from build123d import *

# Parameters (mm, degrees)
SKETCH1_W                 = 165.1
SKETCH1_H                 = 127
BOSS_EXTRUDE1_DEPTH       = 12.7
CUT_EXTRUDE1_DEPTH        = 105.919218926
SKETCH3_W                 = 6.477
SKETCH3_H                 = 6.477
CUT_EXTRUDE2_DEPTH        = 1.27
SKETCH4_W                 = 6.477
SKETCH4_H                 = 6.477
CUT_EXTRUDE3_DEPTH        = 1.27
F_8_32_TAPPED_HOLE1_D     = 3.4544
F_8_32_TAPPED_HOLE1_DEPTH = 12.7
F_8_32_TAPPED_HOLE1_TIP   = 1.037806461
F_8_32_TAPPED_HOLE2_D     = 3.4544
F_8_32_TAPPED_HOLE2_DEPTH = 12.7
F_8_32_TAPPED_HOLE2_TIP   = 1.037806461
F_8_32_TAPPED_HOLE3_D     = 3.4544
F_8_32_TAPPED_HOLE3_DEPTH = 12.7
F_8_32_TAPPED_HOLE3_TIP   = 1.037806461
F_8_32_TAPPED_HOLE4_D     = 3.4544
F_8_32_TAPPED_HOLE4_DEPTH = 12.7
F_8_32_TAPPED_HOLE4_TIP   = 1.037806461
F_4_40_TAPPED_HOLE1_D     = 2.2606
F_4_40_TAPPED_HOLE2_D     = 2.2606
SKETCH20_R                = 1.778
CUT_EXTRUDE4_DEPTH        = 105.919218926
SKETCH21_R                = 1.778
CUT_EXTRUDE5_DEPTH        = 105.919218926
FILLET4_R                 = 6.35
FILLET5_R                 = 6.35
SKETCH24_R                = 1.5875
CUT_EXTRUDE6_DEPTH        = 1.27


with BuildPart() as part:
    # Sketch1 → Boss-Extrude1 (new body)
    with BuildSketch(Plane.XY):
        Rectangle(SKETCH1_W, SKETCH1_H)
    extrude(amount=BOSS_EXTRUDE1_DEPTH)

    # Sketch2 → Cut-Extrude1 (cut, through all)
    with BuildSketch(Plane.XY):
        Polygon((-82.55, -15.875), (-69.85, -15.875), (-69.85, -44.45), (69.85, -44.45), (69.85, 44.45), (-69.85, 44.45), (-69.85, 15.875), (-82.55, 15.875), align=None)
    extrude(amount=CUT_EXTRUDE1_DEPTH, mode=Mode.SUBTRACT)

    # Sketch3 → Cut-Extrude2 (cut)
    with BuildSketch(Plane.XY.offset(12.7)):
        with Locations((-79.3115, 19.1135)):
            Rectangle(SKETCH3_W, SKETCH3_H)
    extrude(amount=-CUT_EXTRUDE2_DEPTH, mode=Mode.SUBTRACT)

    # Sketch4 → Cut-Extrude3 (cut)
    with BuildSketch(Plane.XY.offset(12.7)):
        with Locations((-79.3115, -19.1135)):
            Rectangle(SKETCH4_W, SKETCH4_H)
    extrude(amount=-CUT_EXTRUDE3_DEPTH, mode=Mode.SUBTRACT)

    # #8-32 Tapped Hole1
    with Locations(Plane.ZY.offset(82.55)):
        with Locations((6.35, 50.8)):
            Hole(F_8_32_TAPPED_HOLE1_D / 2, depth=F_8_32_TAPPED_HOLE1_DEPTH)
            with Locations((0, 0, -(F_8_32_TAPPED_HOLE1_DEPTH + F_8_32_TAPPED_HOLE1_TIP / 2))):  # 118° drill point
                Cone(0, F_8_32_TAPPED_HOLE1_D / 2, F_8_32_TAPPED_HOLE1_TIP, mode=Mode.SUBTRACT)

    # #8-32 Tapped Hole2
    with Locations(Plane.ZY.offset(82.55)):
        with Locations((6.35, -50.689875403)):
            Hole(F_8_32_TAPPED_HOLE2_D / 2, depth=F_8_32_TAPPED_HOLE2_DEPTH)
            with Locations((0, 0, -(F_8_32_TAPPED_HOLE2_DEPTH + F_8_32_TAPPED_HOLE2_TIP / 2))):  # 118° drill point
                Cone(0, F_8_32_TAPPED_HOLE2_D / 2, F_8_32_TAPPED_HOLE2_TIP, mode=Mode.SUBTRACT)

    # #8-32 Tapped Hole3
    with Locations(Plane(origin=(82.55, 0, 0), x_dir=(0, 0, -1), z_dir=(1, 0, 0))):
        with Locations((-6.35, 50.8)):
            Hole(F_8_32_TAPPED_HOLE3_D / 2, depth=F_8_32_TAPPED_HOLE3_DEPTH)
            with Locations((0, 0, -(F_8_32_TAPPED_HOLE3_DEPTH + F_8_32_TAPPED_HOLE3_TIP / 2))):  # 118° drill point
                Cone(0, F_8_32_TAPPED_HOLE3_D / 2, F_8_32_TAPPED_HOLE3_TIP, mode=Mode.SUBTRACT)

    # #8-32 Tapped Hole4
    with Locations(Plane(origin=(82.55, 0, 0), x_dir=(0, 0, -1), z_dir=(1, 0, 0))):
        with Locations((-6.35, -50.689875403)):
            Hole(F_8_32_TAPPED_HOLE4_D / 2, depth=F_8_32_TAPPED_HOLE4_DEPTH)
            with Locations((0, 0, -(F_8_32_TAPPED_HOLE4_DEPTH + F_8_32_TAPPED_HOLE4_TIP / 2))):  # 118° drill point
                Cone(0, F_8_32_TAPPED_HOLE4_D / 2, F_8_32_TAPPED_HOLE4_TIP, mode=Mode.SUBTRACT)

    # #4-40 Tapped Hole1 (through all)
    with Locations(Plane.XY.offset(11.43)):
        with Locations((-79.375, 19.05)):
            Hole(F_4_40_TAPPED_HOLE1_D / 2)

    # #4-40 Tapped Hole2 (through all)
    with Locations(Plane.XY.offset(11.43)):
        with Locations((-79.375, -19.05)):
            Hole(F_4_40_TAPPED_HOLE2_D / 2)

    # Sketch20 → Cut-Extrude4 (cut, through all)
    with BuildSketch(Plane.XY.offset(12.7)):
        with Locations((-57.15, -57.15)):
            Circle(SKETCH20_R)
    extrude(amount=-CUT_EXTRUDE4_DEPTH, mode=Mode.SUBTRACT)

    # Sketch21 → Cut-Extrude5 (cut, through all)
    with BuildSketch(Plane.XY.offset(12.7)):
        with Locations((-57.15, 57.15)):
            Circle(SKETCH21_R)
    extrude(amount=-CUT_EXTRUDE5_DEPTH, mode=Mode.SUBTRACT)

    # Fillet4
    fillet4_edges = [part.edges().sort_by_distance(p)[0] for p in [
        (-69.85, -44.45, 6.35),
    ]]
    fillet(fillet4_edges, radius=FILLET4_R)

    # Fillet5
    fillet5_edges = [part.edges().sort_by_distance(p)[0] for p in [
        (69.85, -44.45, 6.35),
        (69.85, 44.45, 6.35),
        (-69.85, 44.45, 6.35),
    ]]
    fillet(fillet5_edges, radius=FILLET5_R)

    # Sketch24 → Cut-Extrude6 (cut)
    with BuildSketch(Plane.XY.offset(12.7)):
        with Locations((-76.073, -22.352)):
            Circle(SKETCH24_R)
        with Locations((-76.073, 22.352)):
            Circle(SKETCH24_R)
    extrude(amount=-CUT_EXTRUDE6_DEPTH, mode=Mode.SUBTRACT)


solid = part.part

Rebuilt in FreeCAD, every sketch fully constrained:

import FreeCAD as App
import Part
import Sketcher
Q = App.Units.Quantity


def edges_at(feature, points):
    """Names of the edges that pass closest to the given points."""
    edges = feature.Shape.Edges
    near = lambda p: min(range(len(edges)), key=lambda i: edges[i].distToShape(Part.Vertex(*p))[0])
    return sorted({f"Edge{near(p) + 1}" for p in points})


def add_polygon(sketch, points):
    """Adds a closed chain of lines whose ends are joined by coincident constraints."""
    first, n = sketch.GeometryCount, len(points)
    for a, b in zip(points, points[1:] + points[:1]):
        sketch.addGeometry(Part.LineSegment(App.Vector(*a, 0), App.Vector(*b, 0)), False)
    for i in range(n):
        sketch.addConstraint(Sketcher.Constraint("Coincident", first + i, 2, first + (i + 1) % n, 1))

doc = App.newDocument("Part")
body = doc.addObject("PartDesign::Body", "Body")

# Sketch on XY plane
sketch1 = body.newObject("Sketcher::SketchObject", "Sketch")
sketch1.AttachmentSupport = (doc.getObject("XY_Plane"), [""])
sketch1.MapMode = "FlatFace"
add_polygon(sketch1, [(-83, 64), (-83, -64), (83, -64), (83, 64)])  # lines 0-3
sketch1.addConstraint([
    Sketcher.Constraint("Vertical", 0),
    Sketcher.Constraint("Horizontal", 1),
    Sketcher.Constraint("Vertical", 2),
    Sketcher.Constraint("Horizontal", 3),
    Sketcher.Constraint("Symmetric", 0, 2, 2, 2, -1, 1),
    Sketcher.Constraint("DistanceY", 0, 2, 0, 1, Q("5 in")),
    Sketcher.Constraint("DistanceX", 1, 1, 1, 2, Q("6.5 in")),
])
pad1 = body.newObject("PartDesign::Pad", "Pad")
pad1.Profile = sketch1
pad1.Length = Q("0.5 in")

# Sketch on XY plane
sketch2 = body.newObject("Sketcher::SketchObject", "Sketch001")
sketch2.AttachmentSupport = (doc.getObject("XY_Plane"), [""])
sketch2.MapMode = "FlatFace"
add_polygon(sketch2, [(-83, -16), (-70, -16), (-70, -44), (70, -44), (70, 44), (-70, 44), (-70, 16), (-83, 16)])  # lines 0-7
sketch2.addConstraint([
    Sketcher.Constraint("Horizontal", 0),
    Sketcher.Constraint("Vertical", 1),
    Sketcher.Constraint("Horizontal", 2),
    Sketcher.Constraint("Vertical", 3),
    Sketcher.Constraint("Horizontal", 4),
    Sketcher.Constraint("Vertical", 5),
    Sketcher.Constraint("Horizontal", 6),
    Sketcher.Constraint("Vertical", 7),
    Sketcher.Constraint("Symmetric", 1, 2, 3, 2, -1, 1),
    Sketcher.Constraint("Symmetric", 0, 2, 5, 2, -1),
    Sketcher.Constraint("DistanceX", 0, 1, 0, 2, Q("0.5 in")),
    Sketcher.Constraint("DistanceX", 2, 1, 2, 2, Q("5.5 in")),
    Sketcher.Constraint("DistanceY", 3, 1, 3, 2, Q("3.5 in")),
    Sketcher.Constraint("DistanceY", 7, 2, 7, 1, Q("1.25 in")),
])
pocket1 = body.newObject("PartDesign::Pocket", "Pocket")
pocket1.Profile = sketch2
pocket1.Type = "ThroughAll"
pocket1.Reversed = True

# Sketch on XY plane
sketch3 = body.newObject("Sketcher::SketchObject", "Sketch002")
sketch3.AttachmentSupport = (doc.getObject("XY_Plane"), [""])
sketch3.MapMode = "FlatFace"
sketch3.AttachmentOffset = App.Placement(App.Vector(0, 0, 0.5 * 25.4), App.Rotation())
add_polygon(sketch3, [(-83, 22), (-83, 16), (-76, 16), (-76, 22)])  # lines 0-3
sketch3.addConstraint([
    Sketcher.Constraint("Vertical", 0),
    Sketcher.Constraint("Horizontal", 1),
    Sketcher.Constraint("Vertical", 2),
    Sketcher.Constraint("Horizontal", 3),
    Sketcher.Constraint("Equal", 3, 0),
    Sketcher.Constraint("DistanceX", 1, 1, 1, 2, Q("0.255 in")),
    Sketcher.Constraint("DistanceX", 0, 2, -1, 1, Q("3.25 in")),
    Sketcher.Constraint("DistanceY", -1, 1, 2, 2, Q("0.88 in")),
])
pocket2 = body.newObject("PartDesign::Pocket", "Pocket001")
pocket2.Profile = sketch3
pocket2.Length = Q("0.05 in")

# Sketch on XY plane
sketch4 = body.newObject("Sketcher::SketchObject", "Sketch003")
sketch4.AttachmentSupport = (doc.getObject("XY_Plane"), [""])
sketch4.MapMode = "FlatFace"
sketch4.AttachmentOffset = App.Placement(App.Vector(0, 0, 0.5 * 25.4), App.Rotation())
add_polygon(sketch4, [(-83, -16), (-83, -22), (-76, -22), (-76, -16)])  # lines 0-3
sketch4.addConstraint([
    Sketcher.Constraint("Vertical", 0),
    Sketcher.Constraint("Horizontal", 1),
    Sketcher.Constraint("Vertical", 2),
    Sketcher.Constraint("Horizontal", 3),
    Sketcher.Constraint("Equal", 3, 0),
    Sketcher.Constraint("DistanceX", 1, 1, 1, 2, Q("0.255 in")),
    Sketcher.Constraint("DistanceX", 0, 2, -1, 1, Q("3.25 in")),
    Sketcher.Constraint("DistanceY", 0, 2, -1, 1, Q("0.88 in")),
])
pocket3 = body.newObject("PartDesign::Pocket", "Pocket002")
pocket3.Profile = sketch4
pocket3.Length = Q("0.05 in")

# Sketch on YZ plane
sketch5 = body.newObject("Sketcher::SketchObject", "Sketch004")
sketch5.AttachmentSupport = (doc.getObject("YZ_Plane"), [""])
sketch5.MapMode = "FlatFace"
sketch5.AttachmentOffset = App.Placement(App.Vector(0, 0, -3.25 * 25.4), App.Rotation())
sketch5.addGeometry(Part.Circle(App.Vector(50.8, 6.3, 0), App.Vector(0, 0, 1), 1.7), False)
sketch5.addConstraint([
    Sketcher.Constraint("Diameter", 0, Q("0.136 in")),
    Sketcher.Constraint("DistanceX", -1, 1, 0, 3, Q("2 in")),
    Sketcher.Constraint("DistanceY", -1, 1, 0, 3, Q("0.25 in")),
])
doc.recompute()
hole = body.newObject("PartDesign::Hole", "Hole")
hole.Profile = sketch5
hole.ThreadType = "None"
hole.Diameter = Q("0.136 in")
hole.DepthType = "Dimension"
hole.Depth = Q("0.5 in")
hole.DrillPoint = "Angled"
hole.DrillPointAngle = 118
hole.Reversed = True

# Sketch on YZ plane
sketch6 = body.newObject("Sketcher::SketchObject", "Sketch005")
sketch6.AttachmentSupport = (doc.getObject("YZ_Plane"), [""])
sketch6.MapMode = "FlatFace"
sketch6.AttachmentOffset = App.Placement(App.Vector(0, 0, -3.25 * 25.4), App.Rotation())
sketch6.addGeometry(Part.Circle(App.Vector(-50.7, 6.3, 0), App.Vector(0, 0, 1), 1.7), False)
sketch6.addConstraint([
    Sketcher.Constraint("Diameter", 0, Q("0.136 in")),
    Sketcher.Constraint("DistanceY", -1, 1, 0, 3, Q("0.25 in")),
    Sketcher.Constraint("DistanceX", 0, 3, -1, 1, Q("50.689875 mm")),
])
doc.recompute()
hole2 = body.newObject("PartDesign::Hole", "Hole001")
hole2.Profile = sketch6
hole2.ThreadType = "None"
hole2.Diameter = Q("0.136 in")
hole2.DepthType = "Dimension"
hole2.Depth = Q("0.5 in")
hole2.DrillPoint = "Angled"
hole2.DrillPointAngle = 118
hole2.Reversed = True

# Sketch on YZ plane
sketch7 = body.newObject("Sketcher::SketchObject", "Sketch006")
sketch7.AttachmentSupport = (doc.getObject("YZ_Plane"), [""])
sketch7.MapMode = "FlatFace"
sketch7.AttachmentOffset = App.Placement(App.Vector(0, 0, 3.25 * 25.4), App.Rotation())
sketch7.addGeometry(Part.Circle(App.Vector(50.8, 6.3, 0), App.Vector(0, 0, 1), 1.7), False)
sketch7.addConstraint([
    Sketcher.Constraint("Diameter", 0, Q("0.136 in")),
    Sketcher.Constraint("DistanceX", -1, 1, 0, 3, Q("2 in")),
    Sketcher.Constraint("DistanceY", -1, 1, 0, 3, Q("0.25 in")),
])
doc.recompute()
hole3 = body.newObject("PartDesign::Hole", "Hole002")
hole3.Profile = sketch7
hole3.ThreadType = "None"
hole3.Diameter = Q("0.136 in")
hole3.DepthType = "Dimension"
hole3.Depth = Q("0.5 in")
hole3.DrillPoint = "Angled"
hole3.DrillPointAngle = 118

# Sketch on YZ plane
sketch8 = body.newObject("Sketcher::SketchObject", "Sketch007")
sketch8.AttachmentSupport = (doc.getObject("YZ_Plane"), [""])
sketch8.MapMode = "FlatFace"
sketch8.AttachmentOffset = App.Placement(App.Vector(0, 0, 3.25 * 25.4), App.Rotation())
sketch8.addGeometry(Part.Circle(App.Vector(-50.7, 6.3, 0), App.Vector(0, 0, 1), 1.7), False)
sketch8.addConstraint([
    Sketcher.Constraint("Diameter", 0, Q("0.136 in")),
    Sketcher.Constraint("DistanceY", -1, 1, 0, 3, Q("0.25 in")),
    Sketcher.Constraint("DistanceX", 0, 3, -1, 1, Q("50.689875 mm")),
])
doc.recompute()
hole4 = body.newObject("PartDesign::Hole", "Hole003")
hole4.Profile = sketch8
hole4.ThreadType = "None"
hole4.Diameter = Q("0.136 in")
hole4.DepthType = "Dimension"
hole4.Depth = Q("0.5 in")
hole4.DrillPoint = "Angled"
hole4.DrillPointAngle = 118

# Sketch on XY plane
sketch9 = body.newObject("Sketcher::SketchObject", "Sketch008")
sketch9.AttachmentSupport = (doc.getObject("XY_Plane"), [""])
sketch9.MapMode = "FlatFace"
sketch9.AttachmentOffset = App.Placement(App.Vector(0, 0, 0.45 * 25.4), App.Rotation())
sketch9.addGeometry(Part.Circle(App.Vector(-79.4, 19.1, 0), App.Vector(0, 0, 1), 1.1), False)
sketch9.addConstraint([
    Sketcher.Constraint("Diameter", 0, Q("0.089 in")),
    Sketcher.Constraint("DistanceY", -1, 1, 0, 3, Q("0.75 in")),
    Sketcher.Constraint("DistanceX", 0, 3, -1, 1, Q("3.125 in")),
])
doc.recompute()
hole5 = body.newObject("PartDesign::Hole", "Hole004")
hole5.Profile = sketch9
hole5.ThreadType = "None"
hole5.Diameter = Q("0.089 in")
hole5.DepthType = "ThroughAll"

# Sketch on XY plane
sketch10 = body.newObject("Sketcher::SketchObject", "Sketch009")
sketch10.AttachmentSupport = (doc.getObject("XY_Plane"), [""])
sketch10.MapMode = "FlatFace"
sketch10.AttachmentOffset = App.Placement(App.Vector(0, 0, 0.45 * 25.4), App.Rotation())
sketch10.addGeometry(Part.Circle(App.Vector(-79.4, -19.1, 0), App.Vector(0, 0, 1), 1.1), False)
sketch10.addConstraint([
    Sketcher.Constraint("Diameter", 0, Q("0.089 in")),
    Sketcher.Constraint("DistanceY", 0, 3, -1, 1, Q("0.75 in")),
    Sketcher.Constraint("DistanceX", 0, 3, -1, 1, Q("3.125 in")),
])
doc.recompute()
hole6 = body.newObject("PartDesign::Hole", "Hole005")
hole6.Profile = sketch10
hole6.ThreadType = "None"
hole6.Diameter = Q("0.089 in")
hole6.DepthType = "ThroughAll"

# Sketch on XY plane
sketch11 = body.newObject("Sketcher::SketchObject", "Sketch010")
sketch11.AttachmentSupport = (doc.getObject("XY_Plane"), [""])
sketch11.MapMode = "FlatFace"
sketch11.AttachmentOffset = App.Placement(App.Vector(0, 0, 0.5 * 25.4), App.Rotation())
sketch11.addGeometry(Part.Circle(App.Vector(-57.1, -57.1, 0), App.Vector(0, 0, 1), 1.8), False)
sketch11.addConstraint([
    Sketcher.Constraint("Diameter", 0, Q("0.14 in")),
    Sketcher.Constraint("DistanceX", 0, 3, -1, 1, Q("2.25 in")),
    Sketcher.Constraint("DistanceY", 0, 3, -1, 1, Q("2.25 in")),
])
pocket4 = body.newObject("PartDesign::Pocket", "Pocket003")
pocket4.Profile = sketch11
pocket4.Type = "ThroughAll"

# Sketch on XY plane
sketch12 = body.newObject("Sketcher::SketchObject", "Sketch011")
sketch12.AttachmentSupport = (doc.getObject("XY_Plane"), [""])
sketch12.MapMode = "FlatFace"
sketch12.AttachmentOffset = App.Placement(App.Vector(0, 0, 0.5 * 25.4), App.Rotation())
sketch12.addGeometry(Part.Circle(App.Vector(-57.1, 57.1, 0), App.Vector(0, 0, 1), 1.8), False)
sketch12.addConstraint([
    Sketcher.Constraint("Diameter", 0, Q("0.14 in")),
    Sketcher.Constraint("DistanceX", 0, 3, -1, 1, Q("2.25 in")),
    Sketcher.Constraint("DistanceY", -1, 1, 0, 3, Q("2.25 in")),
])
pocket5 = body.newObject("PartDesign::Pocket", "Pocket004")
pocket5.Profile = sketch12
pocket5.Type = "ThroughAll"
doc.recompute()

fillet = body.newObject("PartDesign::Fillet", "Fillet")
fillet.Base = (pocket5, edges_at(pocket5, [(-69.85, -44.45, 6.35)]))
fillet.Radius = Q("0.25 in")
doc.recompute()

fillet2 = body.newObject("PartDesign::Fillet", "Fillet001")
fillet2.Base = (fillet, edges_at(fillet, [(69.85, -44.45, 6.35), (69.85, 44.45, 6.35), (-69.85, 44.45, 6.35)]))
fillet2.Radius = Q("0.25 in")

# Sketch on XY plane
sketch13 = body.newObject("Sketcher::SketchObject", "Sketch012")
sketch13.AttachmentSupport = (doc.getObject("XY_Plane"), [""])
sketch13.MapMode = "FlatFace"
sketch13.AttachmentOffset = App.Placement(App.Vector(0, 0, 0.5 * 25.4), App.Rotation())
sketch13.addGeometry([
    Part.Circle(App.Vector(-76.1, -22.4, 0), App.Vector(0, 0, 1), 1.6),
    Part.Circle(App.Vector(-76.1, 22.4, 0), App.Vector(0, 0, 1), 1.6),
], False)
sketch13.addConstraint([
    Sketcher.Constraint("Equal", 0, 1),
    Sketcher.Constraint("Symmetric", 0, 3, 1, 3, -1),
    Sketcher.Constraint("Diameter", 0, Q("0.125 in")),
    Sketcher.Constraint("DistanceY", 0, 3, -1, 1, Q("0.88 in")),
    Sketcher.Constraint("DistanceX", 0, 3, -1, 1, Q("2.995 in")),
])
pocket6 = body.newObject("PartDesign::Pocket", "Pocket005")
pocket6.Profile = sketch13
pocket6.Length = Q("0.05 in")

doc.recompute()
